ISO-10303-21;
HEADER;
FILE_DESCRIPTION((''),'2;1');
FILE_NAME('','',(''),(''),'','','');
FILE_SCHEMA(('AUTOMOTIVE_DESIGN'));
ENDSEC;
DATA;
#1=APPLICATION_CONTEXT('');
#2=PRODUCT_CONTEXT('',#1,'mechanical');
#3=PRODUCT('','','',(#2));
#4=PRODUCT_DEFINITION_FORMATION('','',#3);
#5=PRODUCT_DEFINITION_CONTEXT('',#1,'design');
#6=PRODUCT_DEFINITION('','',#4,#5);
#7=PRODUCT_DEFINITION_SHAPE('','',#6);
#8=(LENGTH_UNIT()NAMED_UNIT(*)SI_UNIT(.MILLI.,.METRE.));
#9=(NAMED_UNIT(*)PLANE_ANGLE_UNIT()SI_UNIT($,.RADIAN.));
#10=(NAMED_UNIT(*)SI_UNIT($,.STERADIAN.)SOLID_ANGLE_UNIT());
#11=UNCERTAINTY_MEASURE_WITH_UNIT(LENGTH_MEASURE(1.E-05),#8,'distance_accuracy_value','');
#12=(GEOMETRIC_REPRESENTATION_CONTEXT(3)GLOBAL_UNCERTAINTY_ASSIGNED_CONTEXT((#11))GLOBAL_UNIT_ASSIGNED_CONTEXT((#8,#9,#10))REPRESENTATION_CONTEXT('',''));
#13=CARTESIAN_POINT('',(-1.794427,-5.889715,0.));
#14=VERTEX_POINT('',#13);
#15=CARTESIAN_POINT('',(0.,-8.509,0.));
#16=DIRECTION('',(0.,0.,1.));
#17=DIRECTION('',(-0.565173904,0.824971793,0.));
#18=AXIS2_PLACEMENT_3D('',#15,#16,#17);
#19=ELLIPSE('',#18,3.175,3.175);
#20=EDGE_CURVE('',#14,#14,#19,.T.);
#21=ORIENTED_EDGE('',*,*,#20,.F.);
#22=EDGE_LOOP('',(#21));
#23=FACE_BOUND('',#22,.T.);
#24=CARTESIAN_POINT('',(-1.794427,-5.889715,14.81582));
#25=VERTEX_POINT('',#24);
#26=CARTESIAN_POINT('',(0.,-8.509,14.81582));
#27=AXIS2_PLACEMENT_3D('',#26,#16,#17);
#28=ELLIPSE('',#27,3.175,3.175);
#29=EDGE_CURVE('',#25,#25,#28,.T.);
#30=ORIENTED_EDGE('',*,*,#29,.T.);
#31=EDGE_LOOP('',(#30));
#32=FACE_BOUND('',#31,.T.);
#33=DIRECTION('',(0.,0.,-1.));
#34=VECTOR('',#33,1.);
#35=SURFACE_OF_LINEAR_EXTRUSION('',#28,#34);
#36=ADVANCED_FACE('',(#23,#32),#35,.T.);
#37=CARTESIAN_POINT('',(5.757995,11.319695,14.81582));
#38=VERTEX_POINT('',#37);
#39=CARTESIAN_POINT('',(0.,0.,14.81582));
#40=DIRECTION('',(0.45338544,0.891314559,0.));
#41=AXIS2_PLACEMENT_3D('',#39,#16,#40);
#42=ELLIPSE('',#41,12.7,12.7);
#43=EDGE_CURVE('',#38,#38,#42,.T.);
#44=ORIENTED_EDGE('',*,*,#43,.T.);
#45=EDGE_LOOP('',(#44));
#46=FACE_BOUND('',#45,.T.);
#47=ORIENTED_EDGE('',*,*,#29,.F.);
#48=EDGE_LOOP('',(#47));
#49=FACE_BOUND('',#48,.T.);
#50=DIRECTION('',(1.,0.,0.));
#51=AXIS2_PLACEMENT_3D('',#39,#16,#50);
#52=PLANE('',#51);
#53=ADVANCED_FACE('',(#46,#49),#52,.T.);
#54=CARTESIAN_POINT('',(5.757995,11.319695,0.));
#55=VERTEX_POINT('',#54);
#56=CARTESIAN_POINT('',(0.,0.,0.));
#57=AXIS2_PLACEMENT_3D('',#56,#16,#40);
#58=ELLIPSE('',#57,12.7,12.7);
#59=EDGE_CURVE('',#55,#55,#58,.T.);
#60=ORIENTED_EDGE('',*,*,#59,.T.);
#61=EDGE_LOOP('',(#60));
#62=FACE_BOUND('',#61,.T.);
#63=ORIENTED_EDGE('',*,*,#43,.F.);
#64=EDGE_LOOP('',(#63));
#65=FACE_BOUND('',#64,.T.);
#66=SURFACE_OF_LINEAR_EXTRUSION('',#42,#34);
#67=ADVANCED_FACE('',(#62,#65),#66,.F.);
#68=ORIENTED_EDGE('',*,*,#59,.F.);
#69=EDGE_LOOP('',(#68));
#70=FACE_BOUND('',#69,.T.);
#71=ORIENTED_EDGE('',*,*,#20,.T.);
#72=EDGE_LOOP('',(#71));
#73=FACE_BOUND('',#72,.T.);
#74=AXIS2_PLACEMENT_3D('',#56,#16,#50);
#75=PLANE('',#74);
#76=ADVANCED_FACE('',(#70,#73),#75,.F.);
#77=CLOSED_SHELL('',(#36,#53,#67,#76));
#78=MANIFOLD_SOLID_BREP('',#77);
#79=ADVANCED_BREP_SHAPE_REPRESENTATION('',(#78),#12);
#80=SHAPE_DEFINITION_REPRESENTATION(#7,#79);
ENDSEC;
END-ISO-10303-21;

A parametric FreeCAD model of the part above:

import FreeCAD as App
import Part
import Sketcher

V = App.Vector

doc = App.newDocument("Part")
params = doc.addObject("Spreadsheet::Sheet", "Params")
for row, (alias, value) in enumerate([
    ("pad1_length", "14.81582 mm"),
], start=1):
    params.set(f"A{row}", alias)
    params.set(f"B{row}", "=" + value)
    params.setAlias(f"B{row}", alias)

body = doc.addObject("PartDesign::Body", "Body")

# Sketch on XY plane
sketch1 = body.newObject("Sketcher::SketchObject", "Sketch")
sketch1.AttachmentSupport = (doc.getObject("XY_Plane"), [""])
sketch1.MapMode = "FlatFace"
sketch1.addGeometry(Part.Ellipse(V(5.757995, 11.319695, 0), V(-11.319695, 5.757995, 0), V(0, 0, 0)), False)
sketch1.addGeometry(Part.Ellipse(V(-1.794427, -5.889715, 0), V(-2.619285, -10.303427, 0), V(0, -8.509, 0)), False)
sketch1.addConstraint(Sketcher.Constraint("Block", 0))
sketch1.addConstraint(Sketcher.Constraint("Block", 1))
pad1 = body.newObject("PartDesign::Pad", "Pad")
pad1.Profile = sketch1
pad1.setExpression("Length", "Params.pad1_length")

doc.recompute()
